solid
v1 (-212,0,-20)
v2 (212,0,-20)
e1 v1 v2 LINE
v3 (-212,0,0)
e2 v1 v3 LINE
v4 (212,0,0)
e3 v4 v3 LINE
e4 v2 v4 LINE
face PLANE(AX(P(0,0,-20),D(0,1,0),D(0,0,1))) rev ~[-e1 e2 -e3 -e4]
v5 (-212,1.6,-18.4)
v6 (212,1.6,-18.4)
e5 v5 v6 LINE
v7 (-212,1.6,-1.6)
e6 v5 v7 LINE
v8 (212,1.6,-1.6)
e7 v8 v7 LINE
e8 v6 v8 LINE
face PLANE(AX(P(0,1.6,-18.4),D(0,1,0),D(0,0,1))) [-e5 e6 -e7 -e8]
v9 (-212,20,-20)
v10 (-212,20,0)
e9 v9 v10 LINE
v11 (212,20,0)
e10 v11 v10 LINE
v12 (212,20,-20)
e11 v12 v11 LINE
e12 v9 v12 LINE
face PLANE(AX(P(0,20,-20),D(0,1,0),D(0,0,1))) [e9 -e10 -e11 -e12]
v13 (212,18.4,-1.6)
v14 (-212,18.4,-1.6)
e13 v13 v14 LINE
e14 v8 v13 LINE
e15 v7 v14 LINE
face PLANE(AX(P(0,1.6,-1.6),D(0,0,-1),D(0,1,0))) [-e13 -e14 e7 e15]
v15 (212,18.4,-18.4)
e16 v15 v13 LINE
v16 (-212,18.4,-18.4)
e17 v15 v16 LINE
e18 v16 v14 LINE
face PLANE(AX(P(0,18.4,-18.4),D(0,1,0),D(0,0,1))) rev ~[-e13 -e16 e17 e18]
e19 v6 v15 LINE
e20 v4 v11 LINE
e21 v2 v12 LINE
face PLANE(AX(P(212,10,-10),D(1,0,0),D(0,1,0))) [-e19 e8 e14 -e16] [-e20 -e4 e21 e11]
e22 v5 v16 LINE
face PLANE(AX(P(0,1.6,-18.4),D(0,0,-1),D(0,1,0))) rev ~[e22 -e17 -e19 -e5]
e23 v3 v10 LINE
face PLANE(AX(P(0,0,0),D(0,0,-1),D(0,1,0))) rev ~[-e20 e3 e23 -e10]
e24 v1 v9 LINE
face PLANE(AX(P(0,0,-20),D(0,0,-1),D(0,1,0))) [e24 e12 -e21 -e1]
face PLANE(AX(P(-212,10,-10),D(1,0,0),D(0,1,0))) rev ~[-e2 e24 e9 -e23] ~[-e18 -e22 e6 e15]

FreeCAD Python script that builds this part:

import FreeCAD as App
import Part
import Sketcher
from FreeCAD import Vector
Q = App.Units.Quantity

doc = App.newDocument("Part")
body = doc.addObject("PartDesign::Body", "Body")

# Sketch on YZ plane
sketch1 = body.newObject("Sketcher::SketchObject", "Sketch")
sketch1.AttachmentSupport = (doc.getObject("YZ_Plane"), [""])
sketch1.MapMode = "FlatFace"
sketch1.addGeometry([
    Part.LineSegment(Vector(0, 0, 0), Vector(0, -20, 0)),  # 0
    Part.LineSegment(Vector(0, -20, 0), Vector(20, -20, 0)),  # 1
    Part.LineSegment(Vector(20, -20, 0), Vector(20, 0, 0)),  # 2
    Part.LineSegment(Vector(20, 0, 0), Vector(0, 0, 0)),  # 3
    Part.LineSegment(Vector(18, -18, 0), Vector(2, -18, 0)),  # 4
    Part.LineSegment(Vector(2, -18, 0), Vector(2, -2, 0)),  # 5
    Part.LineSegment(Vector(2, -2, 0), Vector(18, -2, 0)),  # 6
    Part.LineSegment(Vector(18, -2, 0), Vector(18, -18, 0)),  # 7
], False)
sketch1.addConstraint([
    Sketcher.Constraint("Coincident", 0, 2, 1, 1),
    Sketcher.Constraint("Coincident", 1, 2, 2, 1),
    Sketcher.Constraint("Coincident", 2, 2, 3, 1),
    Sketcher.Constraint("Coincident", 3, 2, 0, 1),
    Sketcher.Constraint("Coincident", 4, 2, 5, 1),
    Sketcher.Constraint("Coincident", 5, 2, 6, 1),
    Sketcher.Constraint("Coincident", 6, 2, 7, 1),
    Sketcher.Constraint("Coincident", 7, 2, 4, 1),
    Sketcher.Constraint("Vertical", 0),
    Sketcher.Constraint("Horizontal", 1),
    Sketcher.Constraint("Vertical", 2),
    Sketcher.Constraint("Horizontal", 3),
    Sketcher.Constraint("Horizontal", 4),
    Sketcher.Constraint("Vertical", 5),
    Sketcher.Constraint("Horizontal", 6),
    Sketcher.Constraint("Vertical", 7),
    Sketcher.Constraint("Coincident", 3, 2, -1, 1),
    Sketcher.Constraint("Equal", 3, 0),
    Sketcher.Constraint("Equal", 6, 5),
    Sketcher.Constraint("DistanceX", 1, 1, 1, 2, Q("20 mm")),
    Sketcher.Constraint("DistanceX", 4, 2, 4, 1, Q("16.8 mm")),
    Sketcher.Constraint("DistanceX", -1, 1, 4, 2, Q("1.6 mm")),
    Sketcher.Constraint("DistanceY", 4, 2, -1, 1, Q("18.4 mm")),
])
pad1 = body.newObject("PartDesign::Pad", "Pad")
pad1.Profile = sketch1
pad1.Length = 424
pad1.Midplane = True

doc.recompute()
